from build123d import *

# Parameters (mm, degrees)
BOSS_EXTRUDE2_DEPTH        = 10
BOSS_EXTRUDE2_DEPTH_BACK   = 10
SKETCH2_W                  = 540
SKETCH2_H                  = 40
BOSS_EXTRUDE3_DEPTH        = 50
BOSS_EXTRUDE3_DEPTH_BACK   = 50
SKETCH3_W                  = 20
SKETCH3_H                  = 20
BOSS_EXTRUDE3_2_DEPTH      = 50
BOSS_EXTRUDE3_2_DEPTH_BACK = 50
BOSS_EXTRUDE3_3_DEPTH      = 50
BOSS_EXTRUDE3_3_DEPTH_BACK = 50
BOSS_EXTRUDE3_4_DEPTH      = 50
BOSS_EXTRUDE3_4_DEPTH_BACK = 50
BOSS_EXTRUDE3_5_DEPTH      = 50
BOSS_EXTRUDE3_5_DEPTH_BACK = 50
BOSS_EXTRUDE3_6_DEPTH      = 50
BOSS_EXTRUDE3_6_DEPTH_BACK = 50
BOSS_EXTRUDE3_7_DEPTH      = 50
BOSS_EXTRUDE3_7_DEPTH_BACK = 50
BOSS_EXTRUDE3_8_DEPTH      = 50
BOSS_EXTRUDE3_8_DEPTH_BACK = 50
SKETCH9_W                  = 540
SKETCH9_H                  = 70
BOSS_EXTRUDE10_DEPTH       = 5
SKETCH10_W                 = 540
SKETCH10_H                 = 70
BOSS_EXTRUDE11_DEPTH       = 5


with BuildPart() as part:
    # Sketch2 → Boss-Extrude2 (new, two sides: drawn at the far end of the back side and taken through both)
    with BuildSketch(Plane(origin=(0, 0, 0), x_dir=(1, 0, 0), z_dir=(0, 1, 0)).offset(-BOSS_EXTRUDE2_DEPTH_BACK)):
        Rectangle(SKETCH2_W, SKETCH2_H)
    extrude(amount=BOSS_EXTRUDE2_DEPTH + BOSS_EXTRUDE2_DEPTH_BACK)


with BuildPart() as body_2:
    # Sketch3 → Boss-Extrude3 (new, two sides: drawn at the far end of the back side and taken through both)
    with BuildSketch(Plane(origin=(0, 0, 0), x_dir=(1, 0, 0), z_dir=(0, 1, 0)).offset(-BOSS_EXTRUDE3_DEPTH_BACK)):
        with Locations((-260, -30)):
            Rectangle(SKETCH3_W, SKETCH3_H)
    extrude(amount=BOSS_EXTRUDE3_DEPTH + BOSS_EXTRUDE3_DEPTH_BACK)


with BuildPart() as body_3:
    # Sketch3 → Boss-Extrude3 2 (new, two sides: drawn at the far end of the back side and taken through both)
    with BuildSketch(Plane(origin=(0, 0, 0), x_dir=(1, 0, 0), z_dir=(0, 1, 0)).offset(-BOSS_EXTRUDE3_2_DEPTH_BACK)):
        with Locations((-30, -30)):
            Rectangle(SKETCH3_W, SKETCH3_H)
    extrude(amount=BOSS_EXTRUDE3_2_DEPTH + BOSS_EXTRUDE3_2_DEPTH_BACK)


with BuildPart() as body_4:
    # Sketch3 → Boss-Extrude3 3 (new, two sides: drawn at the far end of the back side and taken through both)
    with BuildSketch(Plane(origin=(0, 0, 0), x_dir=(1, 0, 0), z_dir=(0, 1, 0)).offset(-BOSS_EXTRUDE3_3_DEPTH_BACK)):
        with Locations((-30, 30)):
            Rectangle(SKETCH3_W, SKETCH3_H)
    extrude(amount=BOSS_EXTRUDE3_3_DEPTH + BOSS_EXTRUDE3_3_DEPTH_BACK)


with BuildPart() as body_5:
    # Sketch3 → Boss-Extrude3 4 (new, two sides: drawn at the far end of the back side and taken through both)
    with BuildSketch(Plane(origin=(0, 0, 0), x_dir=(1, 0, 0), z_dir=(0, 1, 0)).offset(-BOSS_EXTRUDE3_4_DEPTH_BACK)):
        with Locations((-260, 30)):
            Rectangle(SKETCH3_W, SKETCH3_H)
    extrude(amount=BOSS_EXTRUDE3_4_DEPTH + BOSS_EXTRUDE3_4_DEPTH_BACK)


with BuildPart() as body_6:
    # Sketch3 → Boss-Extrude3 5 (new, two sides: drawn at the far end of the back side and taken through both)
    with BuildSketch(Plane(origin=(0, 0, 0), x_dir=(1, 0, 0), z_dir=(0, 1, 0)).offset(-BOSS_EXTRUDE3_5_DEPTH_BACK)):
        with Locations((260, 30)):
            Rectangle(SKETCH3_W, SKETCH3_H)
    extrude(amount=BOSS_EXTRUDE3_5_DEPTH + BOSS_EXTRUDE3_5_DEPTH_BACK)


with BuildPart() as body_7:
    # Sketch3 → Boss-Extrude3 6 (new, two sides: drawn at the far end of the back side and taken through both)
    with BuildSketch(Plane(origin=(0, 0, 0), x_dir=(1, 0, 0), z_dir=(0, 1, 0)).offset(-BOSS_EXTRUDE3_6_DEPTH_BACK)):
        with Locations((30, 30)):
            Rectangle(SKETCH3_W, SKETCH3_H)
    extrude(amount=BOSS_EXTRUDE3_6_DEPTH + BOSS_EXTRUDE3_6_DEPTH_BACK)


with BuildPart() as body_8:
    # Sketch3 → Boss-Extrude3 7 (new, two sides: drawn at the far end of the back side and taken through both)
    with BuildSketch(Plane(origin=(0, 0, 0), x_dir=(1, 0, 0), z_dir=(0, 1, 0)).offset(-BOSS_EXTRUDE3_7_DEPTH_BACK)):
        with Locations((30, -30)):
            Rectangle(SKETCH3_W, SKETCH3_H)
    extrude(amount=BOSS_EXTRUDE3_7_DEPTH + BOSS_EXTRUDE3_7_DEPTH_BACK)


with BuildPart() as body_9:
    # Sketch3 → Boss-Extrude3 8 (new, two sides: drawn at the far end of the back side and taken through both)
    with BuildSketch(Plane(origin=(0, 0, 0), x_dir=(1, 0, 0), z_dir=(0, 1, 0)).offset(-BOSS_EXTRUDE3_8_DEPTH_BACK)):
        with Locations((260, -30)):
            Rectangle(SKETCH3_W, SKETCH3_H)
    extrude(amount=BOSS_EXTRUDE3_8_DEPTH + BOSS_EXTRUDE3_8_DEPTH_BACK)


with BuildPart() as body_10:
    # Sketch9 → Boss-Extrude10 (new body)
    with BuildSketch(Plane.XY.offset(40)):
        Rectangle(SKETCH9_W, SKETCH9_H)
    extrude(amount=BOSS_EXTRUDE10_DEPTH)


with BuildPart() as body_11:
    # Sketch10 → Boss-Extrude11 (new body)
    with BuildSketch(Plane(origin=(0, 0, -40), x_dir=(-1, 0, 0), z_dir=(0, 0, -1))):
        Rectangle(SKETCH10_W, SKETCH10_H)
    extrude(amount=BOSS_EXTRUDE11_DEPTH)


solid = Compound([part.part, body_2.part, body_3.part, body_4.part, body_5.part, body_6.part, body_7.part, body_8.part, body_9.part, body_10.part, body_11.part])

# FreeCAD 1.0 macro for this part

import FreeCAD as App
import Part
import Sketcher

V = App.Vector
Q = App.Units.Quantity

doc = App.newDocument("Part")
body = doc.addObject("PartDesign::Body", "Body")

sketch1 = body.newObject("Sketcher::SketchObject", "Sketch")
sketch1.AttachmentSupport = (doc.getObject("XZ_Plane"), [""])
sketch1.MapMode = "FlatFace"
sketch1.addGeometry(Part.LineSegment(V(-270, -20, 0), V(-270, 20, 0)), False)
sketch1.addGeometry(Part.LineSegment(V(-270, 20, 0), V(270, 20, 0)), False)
sketch1.addGeometry(Part.LineSegment(V(270, 20, 0), V(270, -20, 0)), False)
sketch1.addGeometry(Part.LineSegment(V(270, -20, 0), V(-270, -20, 0)), False)
sketch1.addConstraint(Sketcher.Constraint("Coincident", 0, 2, 1, 1))
sketch1.addConstraint(Sketcher.Constraint("Coincident", 1, 2, 2, 1))
sketch1.addConstraint(Sketcher.Constraint("Coincident", 2, 2, 3, 1))
sketch1.addConstraint(Sketcher.Constraint("Coincident", 3, 2, 0, 1))
sketch1.addConstraint(Sketcher.Constraint("Vertical", 0))
sketch1.addConstraint(Sketcher.Constraint("Horizontal", 1))
sketch1.addConstraint(Sketcher.Constraint("Vertical", 2))
sketch1.addConstraint(Sketcher.Constraint("Horizontal", 3))
sketch1.addConstraint(Sketcher.Constraint("Symmetric", 0, 2, 2, 2, -1, 1))
sketch1.addConstraint(Sketcher.Constraint("DistanceX", 1, 1, 1, 2, Q("540 mm")))
sketch1.addConstraint(Sketcher.Constraint("DistanceY", 0, 1, 0, 2, Q("40 mm")))
pad1 = body.newObject("PartDesign::Pad", "Pad")
pad1.Profile = sketch1
pad1.Type = "TwoLengths"
pad1.Length = 10
pad1.Length2 = 10
pad1.Reversed = True
body2 = doc.addObject("PartDesign::Body", "Body001")

sketch2 = body2.newObject("Sketcher::SketchObject", "Sketch001")
sketch2.AttachmentSupport = (doc.getObject("XZ_Plane001"), [""])
sketch2.MapMode = "FlatFace"
sketch2.addGeometry(Part.LineSegment(V(-270, 20, 0), V(-270, 40, 0)), False)
sketch2.addGeometry(Part.LineSegment(V(-270, 40, 0), V(-250, 40, 0)), False)
sketch2.addGeometry(Part.LineSegment(V(-250, 40, 0), V(-250, 20, 0)), False)
sketch2.addGeometry(Part.LineSegment(V(-250, 20, 0), V(-270, 20, 0)), False)
sketch2.addConstraint(Sketcher.Constraint("Coincident", 0, 2, 1, 1))
sketch2.addConstraint(Sketcher.Constraint("Coincident", 1, 2, 2, 1))
sketch2.addConstraint(Sketcher.Constraint("Coincident", 2, 2, 3, 1))
sketch2.addConstraint(Sketcher.Constraint("Coincident", 3, 2, 0, 1))
sketch2.addConstraint(Sketcher.Constraint("Vertical", 0))
sketch2.addConstraint(Sketcher.Constraint("Horizontal", 1))
sketch2.addConstraint(Sketcher.Constraint("Vertical", 2))
sketch2.addConstraint(Sketcher.Constraint("Horizontal", 3))
sketch2.addConstraint(Sketcher.Constraint("Equal", 3, 0))
sketch2.addConstraint(Sketcher.Constraint("DistanceX", 1, 1, 1, 2, Q("20 mm")))
sketch2.addConstraint(Sketcher.Constraint("DistanceX", 0, 2, -1, 1, Q("270 mm")))
sketch2.addConstraint(Sketcher.Constraint("DistanceY", -1, 1, 0, 2, Q("40 mm")))
pad2 = body2.newObject("PartDesign::Pad", "Pad001")
pad2.Profile = sketch2
pad2.Type = "TwoLengths"
pad2.Length = 50
pad2.Length2 = 50
pad2.Reversed = True
body3 = doc.addObject("PartDesign::Body", "Body002")

sketch3 = body3.newObject("Sketcher::SketchObject", "Sketch002")
sketch3.AttachmentSupport = (doc.getObject("XZ_Plane002"), [""])
sketch3.MapMode = "FlatFace"
sketch3.addGeometry(Part.LineSegment(V(-40, 20, 0), V(-40, 40, 0)), False)
sketch3.addGeometry(Part.LineSegment(V(-40, 40, 0), V(-20, 40, 0)), False)
sketch3.addGeometry(Part.LineSegment(V(-20, 40, 0), V(-20, 20, 0)), False)
sketch3.addGeometry(Part.LineSegment(V(-20, 20, 0), V(-40, 20, 0)), False)
sketch3.addConstraint(Sketcher.Constraint("Coincident", 0, 2, 1, 1))
sketch3.addConstraint(Sketcher.Constraint("Coincident", 1, 2, 2, 1))
sketch3.addConstraint(Sketcher.Constraint("Coincident", 2, 2, 3, 1))
sketch3.addConstraint(Sketcher.Constraint("Coincident", 3, 2, 0, 1))
sketch3.addConstraint(Sketcher.Constraint("Vertical", 0))
sketch3.addConstraint(Sketcher.Constraint("Horizontal", 1))
sketch3.addConstraint(Sketcher.Constraint("Vertical", 2))
sketch3.addConstraint(Sketcher.Constraint("Horizontal", 3))
sketch3.addConstraint(Sketcher.Constraint("Equal", 3, 0))
sketch3.addConstraint(Sketcher.Constraint("DistanceX", 1, 1, 1, 2, Q("20 mm")))
sketch3.addConstraint(Sketcher.Constraint("DistanceX", 0, 2, -1, 1, Q("40 mm")))
sketch3.addConstraint(Sketcher.Constraint("DistanceY", -1, 1, 0, 2, Q("40 mm")))
pad3 = body3.newObject("PartDesign::Pad", "Pad002")
pad3.Profile = sketch3
pad3.Type = "TwoLengths"
pad3.Length = 50
pad3.Length2 = 50
pad3.Reversed = True
body4 = doc.addObject("PartDesign::Body", "Body003")

sketch4 = body4.newObject("Sketcher::SketchObject", "Sketch003")
sketch4.AttachmentSupport = (doc.getObject("XZ_Plane003"), [""])
sketch4.MapMode = "FlatFace"
sketch4.addGeometry(Part.LineSegment(V(-40, -40, 0), V(-40, -20, 0)), False)
sketch4.addGeometry(Part.LineSegment(V(-40, -20, 0), V(-20, -20, 0)), False)
sketch4.addGeometry(Part.LineSegment(V(-20, -20, 0), V(-20, -40, 0)), False)
sketch4.addGeometry(Part.LineSegment(V(-20, -40, 0), V(-40, -40, 0)), False)
sketch4.addConstraint(Sketcher.Constraint("Coincident", 0, 2, 1, 1))
sketch4.addConstraint(Sketcher.Constraint("Coincident", 1, 2, 2, 1))
sketch4.addConstraint(Sketcher.Constraint("Coincident", 2, 2, 3, 1))
sketch4.addConstraint(Sketcher.Constraint("Coincident", 3, 2, 0, 1))
sketch4.addConstraint(Sketcher.Constraint("Vertical", 0))
sketch4.addConstraint(Sketcher.Constraint("Horizontal", 1))
sketch4.addConstraint(Sketcher.Constraint("Vertical", 2))
sketch4.addConstraint(Sketcher.Constraint("Horizontal", 3))
sketch4.addConstraint(Sketcher.Constraint("Equal", 3, 0))
sketch4.addConstraint(Sketcher.Constraint("DistanceX", 1, 1, 1, 2, Q("20 mm")))
sketch4.addConstraint(Sketcher.Constraint("DistanceX", 0, 2, -1, 1, Q("40 mm")))
sketch4.addConstraint(Sketcher.Constraint("DistanceY", 0, 2, -1, 1, Q("20 mm")))
pad4 = body4.newObject("PartDesign::Pad", "Pad003")
pad4.Profile = sketch4
pad4.Type = "TwoLengths"
pad4.Length = 50
pad4.Length2 = 50
pad4.Reversed = True
body5 = doc.addObject("PartDesign::Body", "Body004")

sketch5 = body5.newObject("Sketcher::SketchObject", "Sketch004")
sketch5.AttachmentSupport = (doc.getObject("XZ_Plane004"), [""])
sketch5.MapMode = "FlatFace"
sketch5.addGeometry(Part.LineSegment(V(-270, -40, 0), V(-270, -20, 0)), False)
sketch5.addGeometry(Part.LineSegment(V(-270, -20, 0), V(-250, -20, 0)), False)
sketch5.addGeometry(Part.LineSegment(V(-250, -20, 0), V(-250, -40, 0)), False)
sketch5.addGeometry(Part.LineSegment(V(-250, -40, 0), V(-270, -40, 0)), False)
sketch5.addConstraint(Sketcher.Constraint("Coincident", 0, 2, 1, 1))
sketch5.addConstraint(Sketcher.Constraint("Coincident", 1, 2, 2, 1))
sketch5.addConstraint(Sketcher.Constraint("Coincident", 2, 2, 3, 1))
sketch5.addConstraint(Sketcher.Constraint("Coincident", 3, 2, 0, 1))
sketch5.addConstraint(Sketcher.Constraint("Vertical", 0))
sketch5.addConstraint(Sketcher.Constraint("Horizontal", 1))
sketch5.addConstraint(Sketcher.Constraint("Vertical", 2))
sketch5.addConstraint(Sketcher.Constraint("Horizontal", 3))
sketch5.addConstraint(Sketcher.Constraint("Equal", 3, 0))
sketch5.addConstraint(Sketcher.Constraint("DistanceX", 1, 1, 1, 2, Q("20 mm")))
sketch5.addConstraint(Sketcher.Constraint("DistanceX", 0, 2, -1, 1, Q("270 mm")))
sketch5.addConstraint(Sketcher.Constraint("DistanceY", 0, 2, -1, 1, Q("20 mm")))
pad5 = body5.newObject("PartDesign::Pad", "Pad004")
pad5.Profile = sketch5
pad5.Type = "TwoLengths"
pad5.Length = 50
pad5.Length2 = 50
pad5.Reversed = True
body6 = doc.addObject("PartDesign::Body", "Body005")

sketch6 = body6.newObject("Sketcher::SketchObject", "Sketch005")
sketch6.AttachmentSupport = (doc.getObject("XZ_Plane005"), [""])
sketch6.MapMode = "FlatFace"
sketch6.addGeometry(Part.LineSegment(V(250, -40, 0), V(250, -20, 0)), False)
sketch6.addGeometry(Part.LineSegment(V(250, -20, 0), V(270, -20, 0)), False)
sketch6.addGeometry(Part.LineSegment(V(270, -20, 0), V(270, -40, 0)), False)
sketch6.addGeometry(Part.LineSegment(V(270, -40, 0), V(250, -40, 0)), False)
sketch6.addConstraint(Sketcher.Constraint("Coincident", 0, 2, 1, 1))
sketch6.addConstraint(Sketcher.Constraint("Coincident", 1, 2, 2, 1))
sketch6.addConstraint(Sketcher.Constraint("Coincident", 2, 2, 3, 1))
sketch6.addConstraint(Sketcher.Constraint("Coincident", 3, 2, 0, 1))
sketch6.addConstraint(Sketcher.Constraint("Vertical", 0))
sketch6.addConstraint(Sketcher.Constraint("Horizontal", 1))
sketch6.addConstraint(Sketcher.Constraint("Vertical", 2))
sketch6.addConstraint(Sketcher.Constraint("Horizontal", 3))
sketch6.addConstraint(Sketcher.Constraint("Equal", 3, 0))
sketch6.addConstraint(Sketcher.Constraint("DistanceX", 1, 1, 1, 2, Q("20 mm")))
sketch6.addConstraint(Sketcher.Constraint("DistanceX", -1, 1, 0, 2, Q("250 mm")))
sketch6.addConstraint(Sketcher.Constraint("DistanceY", 0, 2, -1, 1, Q("20 mm")))
pad6 = body6.newObject("PartDesign::Pad", "Pad005")
pad6.Profile = sketch6
pad6.Type = "TwoLengths"
pad6.Length = 50
pad6.Length2 = 50
pad6.Reversed = True
body7 = doc.addObject("PartDesign::Body", "Body006")

sketch7 = body7.newObject("Sketcher::SketchObject", "Sketch006")
sketch7.AttachmentSupport = (doc.getObject("XZ_Plane006"), [""])
sketch7.MapMode = "FlatFace"
sketch7.addGeometry(Part.LineSegment(V(20, -40, 0), V(20, -20, 0)), False)
sketch7.addGeometry(Part.LineSegment(V(20, -20, 0), V(40, -20, 0)), False)
sketch7.addGeometry(Part.LineSegment(V(40, -20, 0), V(40, -40, 0)), False)
sketch7.addGeometry(Part.LineSegment(V(40, -40, 0), V(20, -40, 0)), False)
sketch7.addConstraint(Sketcher.Constraint("Coincident", 0, 2, 1, 1))
sketch7.addConstraint(Sketcher.Constraint("Coincident", 1, 2, 2, 1))
sketch7.addConstraint(Sketcher.Constraint("Coincident", 2, 2, 3, 1))
sketch7.addConstraint(Sketcher.Constraint("Coincident", 3, 2, 0, 1))
sketch7.addConstraint(Sketcher.Constraint("Vertical", 0))
sketch7.addConstraint(Sketcher.Constraint("Horizontal", 1))
sketch7.addConstraint(Sketcher.Constraint("Vertical", 2))
sketch7.addConstraint(Sketcher.Constraint("Horizontal", 3))
sketch7.addConstraint(Sketcher.Constraint("Equal", 3, 0))
sketch7.addConstraint(Sketcher.Constraint("DistanceX", 1, 1, 1, 2, Q("20 mm")))
sketch7.addConstraint(Sketcher.Constraint("DistanceX", -1, 1, 0, 2, Q("20 mm")))
sketch7.addConstraint(Sketcher.Constraint("DistanceY", 0, 2, -1, 1, Q("20 mm")))
pad7 = body7.newObject("PartDesign::Pad", "Pad006")
pad7.Profile = sketch7
pad7.Type = "TwoLengths"
pad7.Length = 50
pad7.Length2 = 50
pad7.Reversed = True
body8 = doc.addObject("PartDesign::Body", "Body007")

sketch8 = body8.newObject("Sketcher::SketchObject", "Sketch007")
sketch8.AttachmentSupport = (doc.getObject("XZ_Plane007"), [""])
sketch8.MapMode = "FlatFace"
sketch8.addGeometry(Part.LineSegment(V(20, 20, 0), V(20, 40, 0)), False)
sketch8.addGeometry(Part.LineSegment(V(20, 40, 0), V(40, 40, 0)), False)
sketch8.addGeometry(Part.LineSegment(V(40, 40, 0), V(40, 20, 0)), False)
sketch8.addGeometry(Part.LineSegment(V(40, 20, 0), V(20, 20, 0)), False)
sketch8.addConstraint(Sketcher.Constraint("Coincident", 0, 2, 1, 1))
sketch8.addConstraint(Sketcher.Constraint("Coincident", 1, 2, 2, 1))
sketch8.addConstraint(Sketcher.Constraint("Coincident", 2, 2, 3, 1))
sketch8.addConstraint(Sketcher.Constraint("Coincident", 3, 2, 0, 1))
sketch8.addConstraint(Sketcher.Constraint("Vertical", 0))
sketch8.addConstraint(Sketcher.Constraint("Horizontal", 1))
sketch8.addConstraint(Sketcher.Constraint("Vertical", 2))
sketch8.addConstraint(Sketcher.Constraint("Horizontal", 3))
sketch8.addConstraint(Sketcher.Constraint("Equal", 3, 0))
sketch8.addConstraint(Sketcher.Constraint("DistanceX", 1, 1, 1, 2, Q("20 mm")))
sketch8.addConstraint(Sketcher.Constraint("DistanceX", -1, 1, 0, 2, Q("20 mm")))
sketch8.addConstraint(Sketcher.Constraint("DistanceY", -1, 1, 0, 2, Q("40 mm")))
pad8 = body8.newObject("PartDesign::Pad", "Pad007")
pad8.Profile = sketch8
pad8.Type = "TwoLengths"
pad8.Length = 50
pad8.Length2 = 50
pad8.Reversed = True
body9 = doc.addObject("PartDesign::Body", "Body008")

sketch9 = body9.newObject("Sketcher::SketchObject", "Sketch008")
sketch9.AttachmentSupport = (doc.getObject("XZ_Plane008"), [""])
sketch9.MapMode = "FlatFace"
sketch9.addGeometry(Part.LineSegment(V(250, 20, 0), V(250, 40, 0)), False)
sketch9.addGeometry(Part.LineSegment(V(250, 40, 0), V(270, 40, 0)), False)
sketch9.addGeometry(Part.LineSegment(V(270, 40, 0), V(270, 20, 0)), False)
sketch9.addGeometry(Part.LineSegment(V(270, 20, 0), V(250, 20, 0)), False)
sketch9.addConstraint(Sketcher.Constraint("Coincident", 0, 2, 1, 1))
sketch9.addConstraint(Sketcher.Constraint("Coincident", 1, 2, 2, 1))
sketch9.addConstraint(Sketcher.Constraint("Coincident", 2, 2, 3, 1))
sketch9.addConstraint(Sketcher.Constraint("Coincident", 3, 2, 0, 1))
sketch9.addConstraint(Sketcher.Constraint("Vertical", 0))
sketch9.addConstraint(Sketcher.Constraint("Horizontal", 1))
sketch9.addConstraint(Sketcher.Constraint("Vertical", 2))
sketch9.addConstraint(Sketcher.Constraint("Horizontal", 3))
sketch9.addConstraint(Sketcher.Constraint("Equal", 3, 0))
sketch9.addConstraint(Sketcher.Constraint("DistanceX", 1, 1, 1, 2, Q("20 mm")))
sketch9.addConstraint(Sketcher.Constraint("DistanceX", -1, 1, 0, 2, Q("250 mm")))
sketch9.addConstraint(Sketcher.Constraint("DistanceY", -1, 1, 0, 2, Q("40 mm")))
pad9 = body9.newObject("PartDesign::Pad", "Pad008")
pad9.Profile = sketch9
pad9.Type = "TwoLengths"
pad9.Length = 50
pad9.Length2 = 50
pad9.Reversed = True
body10 = doc.addObject("PartDesign::Body", "Body009")

sketch10 = body10.newObject("Sketcher::SketchObject", "Sketch009")
sketch10.AttachmentSupport = (doc.getObject("XY_Plane009"), [""])
sketch10.MapMode = "FlatFace"
sketch10.AttachmentOffset = App.Placement(V(0, 0, 40), App.Rotation())
sketch10.addGeometry(Part.LineSegment(V(-270, 35, 0), V(-270, -35, 0)), False)
sketch10.addGeometry(Part.LineSegment(V(-270, -35, 0), V(270, -35, 0)), False)
sketch10.addGeometry(Part.LineSegment(V(270, -35, 0), V(270, 35, 0)), False)
sketch10.addGeometry(Part.LineSegment(V(270, 35, 0), V(-270, 35, 0)), False)
sketch10.addConstraint(Sketcher.Constraint("Coincident", 0, 2, 1, 1))
sketch10.addConstraint(Sketcher.Constraint("Coincident", 1, 2, 2, 1))
sketch10.addConstraint(Sketcher.Constraint("Coincident", 2, 2, 3, 1))
sketch10.addConstraint(Sketcher.Constraint("Coincident", 3, 2, 0, 1))
sketch10.addConstraint(Sketcher.Constraint("Vertical", 0))
sketch10.addConstraint(Sketcher.Constraint("Horizontal", 1))
sketch10.addConstraint(Sketcher.Constraint("Vertical", 2))
sketch10.addConstraint(Sketcher.Constraint("Horizontal", 3))
sketch10.addConstraint(Sketcher.Constraint("Symmetric", 0, 2, 2, 2, -1, 1))
sketch10.addConstraint(Sketcher.Constraint("DistanceX", 1, 1, 1, 2, Q("540 mm")))
sketch10.addConstraint(Sketcher.Constraint("DistanceY", 0, 2, 0, 1, Q("70 mm")))
pad10 = body10.newObject("PartDesign::Pad", "Pad009")
pad10.Profile = sketch10
pad10.Length = 5
body11 = doc.addObject("PartDesign::Body", "Body010")

sketch11 = body11.newObject("Sketcher::SketchObject", "Sketch010")
sketch11.AttachmentSupport = (doc.getObject("XY_Plane010"), [""])
sketch11.MapMode = "FlatFace"
sketch11.AttachmentOffset = App.Placement(V(0, 0, -40), App.Rotation())
sketch11.addGeometry(Part.LineSegment(V(270, 35, 0), V(270, -35, 0)), False)
sketch11.addGeometry(Part.LineSegment(V(270, -35, 0), V(-270, -35, 0)), False)
sketch11.addGeometry(Part.LineSegment(V(-270, -35, 0), V(-270, 35, 0)), False)
sketch11.addGeometry(Part.LineSegment(V(-270, 35, 0), V(270, 35, 0)), False)
sketch11.addConstraint(Sketcher.Constraint("Coincident", 0, 2, 1, 1))
sketch11.addConstraint(Sketcher.Constraint("Coincident", 1, 2, 2, 1))
sketch11.addConstraint(Sketcher.Constraint("Coincident", 2, 2, 3, 1))
sketch11.addConstraint(Sketcher.Constraint("Coincident", 3, 2, 0, 1))
sketch11.addConstraint(Sketcher.Constraint("Vertical", 0))
sketch11.addConstraint(Sketcher.Constraint("Horizontal", 1))
sketch11.addConstraint(Sketcher.Constraint("Vertical", 2))
sketch11.addConstraint(Sketcher.Constraint("Horizontal", 3))
sketch11.addConstraint(Sketcher.Constraint("Symmetric", 0, 2, 2, 2, -1, 1))
sketch11.addConstraint(Sketcher.Constraint("DistanceX", 1, 2, 1, 1, Q("540 mm")))
sketch11.addConstraint(Sketcher.Constraint("DistanceY", 0, 2, 0, 1, Q("70 mm")))
pad11 = body11.newObject("PartDesign::Pad", "Pad010")
pad11.Profile = sketch11
pad11.Length = 5
pad11.Reversed = True

doc.recompute()
